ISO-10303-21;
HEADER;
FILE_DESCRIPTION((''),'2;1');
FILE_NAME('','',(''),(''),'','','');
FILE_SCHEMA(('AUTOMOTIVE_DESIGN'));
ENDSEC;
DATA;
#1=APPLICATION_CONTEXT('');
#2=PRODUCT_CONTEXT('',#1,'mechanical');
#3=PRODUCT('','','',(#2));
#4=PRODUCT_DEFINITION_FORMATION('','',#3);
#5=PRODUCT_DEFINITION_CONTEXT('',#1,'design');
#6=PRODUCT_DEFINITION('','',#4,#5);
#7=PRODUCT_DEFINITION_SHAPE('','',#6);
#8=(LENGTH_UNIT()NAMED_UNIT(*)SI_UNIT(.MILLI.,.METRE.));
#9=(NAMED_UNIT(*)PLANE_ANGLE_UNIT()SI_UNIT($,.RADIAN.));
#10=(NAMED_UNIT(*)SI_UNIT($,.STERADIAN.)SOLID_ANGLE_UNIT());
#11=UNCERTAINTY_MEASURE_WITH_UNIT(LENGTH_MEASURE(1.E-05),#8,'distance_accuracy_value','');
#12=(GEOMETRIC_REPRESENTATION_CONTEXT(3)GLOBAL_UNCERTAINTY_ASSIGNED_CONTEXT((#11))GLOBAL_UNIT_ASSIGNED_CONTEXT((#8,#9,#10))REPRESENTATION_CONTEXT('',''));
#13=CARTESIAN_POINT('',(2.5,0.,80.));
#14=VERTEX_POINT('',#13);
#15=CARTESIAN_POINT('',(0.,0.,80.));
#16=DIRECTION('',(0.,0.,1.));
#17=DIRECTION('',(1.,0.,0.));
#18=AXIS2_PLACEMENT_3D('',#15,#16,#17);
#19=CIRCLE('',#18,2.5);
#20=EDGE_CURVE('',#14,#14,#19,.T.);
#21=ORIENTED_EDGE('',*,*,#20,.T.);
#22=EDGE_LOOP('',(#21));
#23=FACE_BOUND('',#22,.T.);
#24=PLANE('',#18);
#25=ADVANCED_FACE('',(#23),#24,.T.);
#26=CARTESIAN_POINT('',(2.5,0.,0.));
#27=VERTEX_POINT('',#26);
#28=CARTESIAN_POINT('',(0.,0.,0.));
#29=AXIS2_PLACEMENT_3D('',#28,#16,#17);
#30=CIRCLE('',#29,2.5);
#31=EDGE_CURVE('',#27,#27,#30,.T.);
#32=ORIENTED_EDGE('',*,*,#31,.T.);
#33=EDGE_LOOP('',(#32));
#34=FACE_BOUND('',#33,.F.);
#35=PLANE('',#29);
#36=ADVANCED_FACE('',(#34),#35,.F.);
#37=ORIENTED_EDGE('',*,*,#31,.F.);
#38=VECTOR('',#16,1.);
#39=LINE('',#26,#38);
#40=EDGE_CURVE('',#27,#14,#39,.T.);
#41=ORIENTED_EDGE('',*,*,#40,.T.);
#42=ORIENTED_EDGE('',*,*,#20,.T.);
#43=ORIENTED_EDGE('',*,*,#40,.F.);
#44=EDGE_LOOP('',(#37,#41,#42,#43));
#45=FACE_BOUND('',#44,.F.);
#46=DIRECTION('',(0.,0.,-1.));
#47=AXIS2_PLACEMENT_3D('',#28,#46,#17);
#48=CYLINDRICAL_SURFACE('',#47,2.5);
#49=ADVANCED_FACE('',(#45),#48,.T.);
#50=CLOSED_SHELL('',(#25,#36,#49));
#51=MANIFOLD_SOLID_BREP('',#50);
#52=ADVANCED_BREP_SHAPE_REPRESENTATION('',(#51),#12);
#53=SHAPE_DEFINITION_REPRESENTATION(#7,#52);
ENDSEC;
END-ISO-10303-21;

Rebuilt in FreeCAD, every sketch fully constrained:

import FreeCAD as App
import Part
import Sketcher

V = App.Vector
Q = App.Units.Quantity

doc = App.newDocument("Part")
body = doc.addObject("PartDesign::Body", "Body")

# Sketch on XY plane
sketch1 = body.newObject("Sketcher::SketchObject", "Sketch")
sketch1.AttachmentSupport = (doc.getObject("XY_Plane"), [""])
sketch1.MapMode = "FlatFace"
sketch1.addGeometry(Part.Circle(V(0, 0, 0), V(0, 0, 1), 2.5), False)
sketch1.addConstraint(Sketcher.Constraint("Coincident", 0, 3, -1, 1))
sketch1.addConstraint(Sketcher.Constraint("Diameter", 0, Q("5 mm")))
pad1 = body.newObject("PartDesign::Pad", "Pad")
pad1.Profile = sketch1
pad1.Length = 80

doc.recompute()
